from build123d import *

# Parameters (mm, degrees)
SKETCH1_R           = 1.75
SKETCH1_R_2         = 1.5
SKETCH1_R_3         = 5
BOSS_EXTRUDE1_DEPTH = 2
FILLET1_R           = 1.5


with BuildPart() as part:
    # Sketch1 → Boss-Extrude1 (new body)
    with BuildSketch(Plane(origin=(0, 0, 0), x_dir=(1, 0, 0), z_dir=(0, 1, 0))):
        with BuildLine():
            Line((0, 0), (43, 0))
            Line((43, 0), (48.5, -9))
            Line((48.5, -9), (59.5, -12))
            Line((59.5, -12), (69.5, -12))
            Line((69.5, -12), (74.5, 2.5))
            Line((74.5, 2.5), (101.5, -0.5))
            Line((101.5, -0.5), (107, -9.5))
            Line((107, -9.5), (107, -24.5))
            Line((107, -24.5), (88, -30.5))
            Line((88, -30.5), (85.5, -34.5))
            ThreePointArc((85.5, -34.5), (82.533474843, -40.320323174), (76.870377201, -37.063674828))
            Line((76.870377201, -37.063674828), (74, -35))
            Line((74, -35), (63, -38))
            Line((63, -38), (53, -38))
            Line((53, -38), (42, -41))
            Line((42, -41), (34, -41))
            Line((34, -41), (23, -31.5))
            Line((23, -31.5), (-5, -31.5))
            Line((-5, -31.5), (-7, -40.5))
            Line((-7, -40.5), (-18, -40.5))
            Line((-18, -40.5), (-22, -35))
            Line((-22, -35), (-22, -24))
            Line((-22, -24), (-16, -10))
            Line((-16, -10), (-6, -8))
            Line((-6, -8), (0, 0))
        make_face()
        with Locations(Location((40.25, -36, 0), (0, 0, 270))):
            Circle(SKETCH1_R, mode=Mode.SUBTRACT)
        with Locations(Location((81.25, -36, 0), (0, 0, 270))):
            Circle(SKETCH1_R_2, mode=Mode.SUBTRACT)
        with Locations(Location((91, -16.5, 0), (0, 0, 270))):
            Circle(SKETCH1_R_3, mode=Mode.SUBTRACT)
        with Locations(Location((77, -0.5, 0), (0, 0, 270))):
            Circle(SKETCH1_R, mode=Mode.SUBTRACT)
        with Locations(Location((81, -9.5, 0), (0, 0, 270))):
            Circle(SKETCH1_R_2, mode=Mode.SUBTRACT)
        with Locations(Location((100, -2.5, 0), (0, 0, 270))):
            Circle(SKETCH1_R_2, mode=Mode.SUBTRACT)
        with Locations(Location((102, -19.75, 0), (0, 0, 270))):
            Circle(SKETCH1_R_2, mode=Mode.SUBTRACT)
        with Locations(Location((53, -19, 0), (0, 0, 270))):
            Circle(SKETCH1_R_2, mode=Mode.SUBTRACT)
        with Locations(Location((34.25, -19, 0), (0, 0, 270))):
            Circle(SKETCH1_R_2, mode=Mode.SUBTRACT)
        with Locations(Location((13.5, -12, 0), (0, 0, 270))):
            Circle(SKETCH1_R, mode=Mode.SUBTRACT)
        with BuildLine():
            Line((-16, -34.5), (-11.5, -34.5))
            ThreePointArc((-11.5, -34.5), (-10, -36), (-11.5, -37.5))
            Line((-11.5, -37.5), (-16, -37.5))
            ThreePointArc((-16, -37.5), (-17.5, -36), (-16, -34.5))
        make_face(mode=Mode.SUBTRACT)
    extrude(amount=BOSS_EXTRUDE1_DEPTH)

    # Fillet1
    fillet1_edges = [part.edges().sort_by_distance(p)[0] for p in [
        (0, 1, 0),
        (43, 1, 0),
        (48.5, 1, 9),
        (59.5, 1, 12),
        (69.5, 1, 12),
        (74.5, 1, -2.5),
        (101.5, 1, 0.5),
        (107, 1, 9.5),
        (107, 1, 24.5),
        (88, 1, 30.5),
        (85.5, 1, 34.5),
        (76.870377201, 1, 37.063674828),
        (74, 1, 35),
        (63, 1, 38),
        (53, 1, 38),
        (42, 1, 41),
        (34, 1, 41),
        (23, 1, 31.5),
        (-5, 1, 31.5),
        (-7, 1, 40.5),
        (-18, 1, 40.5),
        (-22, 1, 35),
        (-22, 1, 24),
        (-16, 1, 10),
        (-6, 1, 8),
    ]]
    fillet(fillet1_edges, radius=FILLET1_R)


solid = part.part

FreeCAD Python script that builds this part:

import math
import FreeCAD as App
import Part
import Sketcher
from FreeCAD import Vector
Q = App.Units.Quantity


def edges_at(feature, points):
    """Names of the edges that pass closest to the given points."""
    edges = feature.Shape.Edges
    near = lambda p: min(range(len(edges)), key=lambda i: edges[i].distToShape(Part.Vertex(*p))[0])
    return sorted({f"Edge{near(p) + 1}" for p in points})

doc = App.newDocument("Part")
body = doc.addObject("PartDesign::Body", "Body")

# Sketch on XZ plane
sketch1 = body.newObject("Sketcher::SketchObject", "Sketch")
sketch1.AttachmentSupport = (doc.getObject("XZ_Plane"), [""])
sketch1.MapMode = "FlatFace"
sketch1.addGeometry(Part.LineSegment(Vector(43, 0, 0), Vector(0, 0, 0)), False)
sketch1.addGeometry(Part.LineSegment(Vector(0, 0, 0), Vector(-6, 8, 0)), False)
sketch1.addGeometry(Part.LineSegment(Vector(-6, 8, 0), Vector(-16, 10, 0)), False)
sketch1.addGeometry(Part.LineSegment(Vector(-16, 10, 0), Vector(-22, 24, 0)), False)
sketch1.addGeometry(Part.LineSegment(Vector(-22, 24, 0), Vector(-22, 35, 0)), False)
sketch1.addGeometry(Part.LineSegment(Vector(-22, 35, 0), Vector(-18, 40.5, 0)), False)
sketch1.addGeometry(Part.LineSegment(Vector(-18, 40.5, 0), Vector(-7, 40.5, 0)), False)
sketch1.addGeometry(Part.LineSegment(Vector(-7, 40.5, 0), Vector(-5, 31.5, 0)), False)
sketch1.addGeometry(Part.LineSegment(Vector(-5, 31.5, 0), Vector(23, 31.5, 0)), False)
sketch1.addGeometry(Part.LineSegment(Vector(23, 31.5, 0), Vector(34, 41, 0)), False)
sketch1.addGeometry(Part.LineSegment(Vector(34, 41, 0), Vector(42, 41, 0)), False)
sketch1.addGeometry(Part.LineSegment(Vector(42, 41, 0), Vector(53, 38, 0)), False)
sketch1.addGeometry(Part.LineSegment(Vector(53, 38, 0), Vector(63, 38, 0)), False)
sketch1.addGeometry(Part.LineSegment(Vector(63, 38, 0), Vector(74, 35, 0)), False)
sketch1.addGeometry(Part.LineSegment(Vector(74, 35, 0), Vector(76.9, 37.1, 0)), False)
sketch1.addGeometry(Part.ArcOfCircle(Part.Circle(Vector(81.2, 36, 0), Vector(0, 0, 1), 4.5), math.radians(-19), math.radians(166)), False)
sketch1.addGeometry(Part.LineSegment(Vector(85.5, 34.5, 0), Vector(88, 30.5, 0)), False)
sketch1.addGeometry(Part.LineSegment(Vector(88, 30.5, 0), Vector(107, 24.5, 0)), False)
sketch1.addGeometry(Part.LineSegment(Vector(107, 24.5, 0), Vector(107, 9.5, 0)), False)
sketch1.addGeometry(Part.LineSegment(Vector(107, 9.5, 0), Vector(101.5, 0.5, 0)), False)
sketch1.addGeometry(Part.LineSegment(Vector(101.5, 0.5, 0), Vector(74.5, -2.5, 0)), False)
sketch1.addGeometry(Part.LineSegment(Vector(74.5, -2.5, 0), Vector(69.5, 12, 0)), False)
sketch1.addGeometry(Part.LineSegment(Vector(69.5, 12, 0), Vector(59.5, 12, 0)), False)
sketch1.addGeometry(Part.LineSegment(Vector(59.5, 12, 0), Vector(48.5, 9, 0)), False)
sketch1.addGeometry(Part.LineSegment(Vector(48.5, 9, 0), Vector(43, 0, 0)), False)
sketch1.addGeometry(Part.Circle(Vector(81.2, 36, 0), Vector(0, 0, 1), 1.5), False)
sketch1.addGeometry(Part.Circle(Vector(102, 19.8, 0), Vector(0, 0, 1), 1.5), False)
sketch1.addGeometry(Part.Circle(Vector(53, 19, 0), Vector(0, 0, 1), 1.5), False)
sketch1.addGeometry(Part.Circle(Vector(40.2, 36, 0), Vector(0, 0, 1), 1.8), False)
sketch1.addGeometry(Part.LineSegment(Vector(-16, 34.5, 0), Vector(-11.5, 34.5, 0)), False)
sketch1.addGeometry(Part.ArcOfCircle(Part.Circle(Vector(-11.5, 36, 0), Vector(0, 0, 1), 1.5), math.radians(-90), math.radians(90)), False)
sketch1.addGeometry(Part.LineSegment(Vector(-11.5, 37.5, 0), Vector(-16, 37.5, 0)), False)
sketch1.addGeometry(Part.ArcOfCircle(Part.Circle(Vector(-16, 36, 0), Vector(0, 0, 1), 1.5), math.radians(90), math.radians(270)), False)
sketch1.addGeometry(Part.Circle(Vector(34.2, 19, 0), Vector(0, 0, 1), 1.5), False)
sketch1.addGeometry(Part.Circle(Vector(91, 16.5, 0), Vector(0, 0, 1), 5), False)
sketch1.addGeometry(Part.Circle(Vector(81, 9.5, 0), Vector(0, 0, 1), 1.5), False)
sketch1.addGeometry(Part.Circle(Vector(100, 2.5, 0), Vector(0, 0, 1), 1.5), False)
sketch1.addGeometry(Part.Circle(Vector(77, 0.5, 0), Vector(0, 0, 1), 1.8), False)
sketch1.addGeometry(Part.Circle(Vector(13.5, 12, 0), Vector(0, 0, 1), 1.8), False)
sketch1.addConstraint(Sketcher.Constraint("Coincident", 0, 2, 1, 1))
sketch1.addConstraint(Sketcher.Constraint("Coincident", 1, 2, 2, 1))
sketch1.addConstraint(Sketcher.Constraint("Coincident", 2, 2, 3, 1))
sketch1.addConstraint(Sketcher.Constraint("Coincident", 3, 2, 4, 1))
sketch1.addConstraint(Sketcher.Constraint("Coincident", 4, 2, 5, 1))
sketch1.addConstraint(Sketcher.Constraint("Coincident", 5, 2, 6, 1))
sketch1.addConstraint(Sketcher.Constraint("Coincident", 6, 2, 7, 1))
sketch1.addConstraint(Sketcher.Constraint("Coincident", 7, 2, 8, 1))
sketch1.addConstraint(Sketcher.Constraint("Coincident", 8, 2, 9, 1))
sketch1.addConstraint(Sketcher.Constraint("Coincident", 9, 2, 10, 1))
sketch1.addConstraint(Sketcher.Constraint("Coincident", 10, 2, 11, 1))
sketch1.addConstraint(Sketcher.Constraint("Coincident", 11, 2, 12, 1))
sketch1.addConstraint(Sketcher.Constraint("Coincident", 12, 2, 13, 1))
sketch1.addConstraint(Sketcher.Constraint("Coincident", 13, 2, 14, 1))
sketch1.addConstraint(Sketcher.Constraint("Coincident", 14, 2, 15, 2))
sketch1.addConstraint(Sketcher.Constraint("Coincident", 15, 1, 16, 1))
sketch1.addConstraint(Sketcher.Constraint("Coincident", 16, 2, 17, 1))
sketch1.addConstraint(Sketcher.Constraint("Coincident", 17, 2, 18, 1))
sketch1.addConstraint(Sketcher.Constraint("Coincident", 18, 2, 19, 1))
sketch1.addConstraint(Sketcher.Constraint("Coincident", 19, 2, 20, 1))
sketch1.addConstraint(Sketcher.Constraint("Coincident", 20, 2, 21, 1))
sketch1.addConstraint(Sketcher.Constraint("Coincident", 21, 2, 22, 1))
sketch1.addConstraint(Sketcher.Constraint("Coincident", 22, 2, 23, 1))
sketch1.addConstraint(Sketcher.Constraint("Coincident", 23, 2, 24, 1))
sketch1.addConstraint(Sketcher.Constraint("Coincident", 24, 2, 0, 1))
sketch1.addConstraint(Sketcher.Constraint("Tangent", 29, 2, 30, 1))
sketch1.addConstraint(Sketcher.Constraint("Tangent", 30, 2, 31, 1))
sketch1.addConstraint(Sketcher.Constraint("Tangent", 31, 2, 32, 1))
sketch1.addConstraint(Sketcher.Constraint("Tangent", 32, 2, 29, 1))
sketch1.addConstraint(Sketcher.Constraint("Horizontal", 0))
sketch1.addConstraint(Sketcher.Constraint("Vertical", 4))
sketch1.addConstraint(Sketcher.Constraint("Horizontal", 6))
sketch1.addConstraint(Sketcher.Constraint("Horizontal", 8))
sketch1.addConstraint(Sketcher.Constraint("Horizontal", 10))
sketch1.addConstraint(Sketcher.Constraint("Horizontal", 12))
sketch1.addConstraint(Sketcher.Constraint("Vertical", 18))
sketch1.addConstraint(Sketcher.Constraint("Horizontal", 22))
sketch1.addConstraint(Sketcher.Constraint("Horizontal", 29))
sketch1.addConstraint(Sketcher.Constraint("Horizontal", 31))
sketch1.addConstraint(Sketcher.Constraint("Coincident", 0, 2, -1, 1))
sketch1.addConstraint(Sketcher.Constraint("Coincident", 25, 3, 15, 3))
sketch1.addConstraint(Sketcher.Constraint("Equal", 25, 26))
sketch1.addConstraint(Sketcher.Constraint("Equal", 26, 27))
sketch1.addConstraint(Sketcher.Constraint("Equal", 27, 30))
sketch1.addConstraint(Sketcher.Constraint("Equal", 32, 33))
sketch1.addConstraint(Sketcher.Constraint("Equal", 33, 35))
sketch1.addConstraint(Sketcher.Constraint("Equal", 35, 36))
sketch1.addConstraint(Sketcher.Constraint("Equal", 28, 37))
sketch1.addConstraint(Sketcher.Constraint("Equal", 37, 38))
sketch1.addConstraint(Sketcher.Constraint("Parallel", 11, 13))
sketch1.addConstraint(Sketcher.Constraint("Parallel", 19, 24))
sketch1.addConstraint(Sketcher.Constraint("Horizontal", 25, 3, 28, 3))
sketch1.addConstraint(Sketcher.Constraint("Horizontal", 28, 3, 30, 3))
sketch1.addConstraint(Sketcher.Constraint("Horizontal", 27, 3, 33, 3))
sketch1.addConstraint(Sketcher.Constraint("Horizontal", 4, 2, 13, 2))
sketch1.addConstraint(Sketcher.Constraint("Horizontal", 35, 3, 18, 2))
sketch1.addConstraint(Sketcher.Constraint("Horizontal", 37, 3, 19, 2))
sketch1.addConstraint(Sketcher.Constraint("Horizontal", 38, 3, 21, 2))
sketch1.addConstraint(Sketcher.Constraint("Horizontal", 15, 1, 29, 2))
sketch1.addConstraint(Sketcher.Constraint("Vertical", 32, 3, 2, 2))
sketch1.addConstraint(Sketcher.Constraint("Vertical", 27, 3, 11, 2))
sketch1.addConstraint(Sketcher.Constraint("Equal", 12, 22))
sketch1.addConstraint(Sketcher.Constraint("Equal", 6, 4))
sketch1.addConstraint(Sketcher.Constraint("Equal", 11, 13))
sketch1.addConstraint(Sketcher.Constraint("Equal", 13, 23))
sketch1.addConstraint(Sketcher.Constraint("Equal", 19, 24))
sketch1.addConstraint(Sketcher.Constraint("Diameter", 25, Q("3 mm")))
sketch1.addConstraint(Sketcher.Constraint("Diameter", 34, Q("10 mm")))
sketch1.addConstraint(Sketcher.Constraint("Diameter", 28, Q("3.5 mm")))
sketch1.addConstraint(Sketcher.Constraint("DistanceX", 0, 2, 0, 1, Q("43 mm")))
sketch1.addConstraint(Sketcher.Constraint("DistanceX", 6, 1, 6, 2, Q("11 mm")))
sketch1.addConstraint(Sketcher.Constraint("DistanceX", 8, 1, 8, 2, Q("28 mm")))
sketch1.addConstraint(Sketcher.Constraint("DistanceX", 10, 1, 10, 2, Q("8 mm")))
sketch1.addConstraint(Sketcher.Constraint("DistanceX", 12, 1, 12, 2, Q("10 mm")))
sketch1.addConstraint(Sketcher.Constraint("DistanceY", 18, 2, 18, 1, Q("15 mm")))
sketch1.addConstraint(Sketcher.Constraint("Distance", 1, Q("10 mm")))
sketch1.addConstraint(Sketcher.Constraint("DistanceX", 29, 1, 29, 2, Q("4.5 mm")))
sketch1.addConstraint(Sketcher.Constraint("DistanceY", -1, 1, 15, 3, Q("36 mm")))
sketch1.addConstraint(Sketcher.Constraint("DistanceX", -1, 1, 26, 3, Q("102 mm")))
sketch1.addConstraint(Sketcher.Constraint("DistanceX", -1, 1, 27, 3, Q("53 mm")))
sketch1.addConstraint(Sketcher.Constraint("DistanceY", -1, 1, 27, 3, Q("19 mm")))
sketch1.addConstraint(Sketcher.Constraint("DistanceX", 32, 3, -1, 1, Q("16 mm")))
sketch1.addConstraint(Sketcher.Constraint("DistanceX", -1, 1, 34, 3, Q("91 mm")))
sketch1.addConstraint(Sketcher.Constraint("DistanceX", -1, 1, 35, 3, Q("81 mm")))
sketch1.addConstraint(Sketcher.Constraint("DistanceX", -1, 1, 36, 3, Q("100 mm")))
sketch1.addConstraint(Sketcher.Constraint("DistanceX", -1, 1, 37, 3, Q("77 mm")))
sketch1.addConstraint(Sketcher.Constraint("DistanceY", -1, 1, 38, 3, Q("12 mm")))
sketch1.addConstraint(Sketcher.Constraint("DistanceX", 1, 2, -1, 1, Q("6 mm")))
sketch1.addConstraint(Sketcher.Constraint("DistanceY", -1, 1, 2, 2, Q("10 mm")))
sketch1.addConstraint(Sketcher.Constraint("DistanceX", 3, 2, -1, 1, Q("22 mm")))
sketch1.addConstraint(Sketcher.Constraint("DistanceY", -1, 1, 3, 2, Q("24 mm")))
sketch1.addConstraint(Sketcher.Constraint("DistanceX", 5, 2, -1, 1, Q("18 mm")))
sketch1.addConstraint(Sketcher.Constraint("DistanceX", 7, 2, -1, 1, Q("5 mm")))
sketch1.addConstraint(Sketcher.Constraint("DistanceX", -1, 1, 9, 2, Q("34 mm")))
sketch1.addConstraint(Sketcher.Constraint("DistanceY", -1, 1, 9, 2, Q("41 mm")))
sketch1.addConstraint(Sketcher.Constraint("DistanceX", -1, 1, 16, 2, Q("88 mm")))
sketch1.addConstraint(Sketcher.Constraint("DistanceX", -1, 1, 17, 2, Q("107 mm")))
sketch1.addConstraint(Sketcher.Constraint("DistanceY", -1, 1, 23, 2, Q("9 mm")))
sketch1.addConstraint(Sketcher.Constraint("DistanceX", 28, 3, 15, 3, Q("41 mm")))
sketch1.addConstraint(Sketcher.Constraint("DistanceX", 33, 3, 28, 3, Q("6 mm")))
sketch1.addConstraint(Sketcher.Constraint("DistanceY", 35, 3, 34, 3, Q("7 mm")))
sketch1.addConstraint(Sketcher.Constraint("DistanceY", 36, 3, 34, 3, Q("14 mm")))
sketch1.addConstraint(Sketcher.Constraint("DistanceX", 30, 3, 38, 3, Q("25 mm")))
sketch1.addConstraint(Sketcher.Constraint("DistanceY", 7, 2, 6, 2, Q("9 mm")))
sketch1.addConstraint(Sketcher.Constraint("DistanceY", 34, 3, 15, 1, Q("18 mm")))
sketch1.addConstraint(Sketcher.Constraint("DistanceY", 16, 2, 15, 1, Q("4 mm")))
sketch1.addConstraint(Sketcher.Constraint("DistanceY", 20, 2, 37, 3, Q("3 mm")))
sketch1.addConstraint(Sketcher.Constraint("DistanceX", 20, 2, 19, 2, Q("27 mm")))
sketch1.addConstraint(Sketcher.Constraint("DistanceX", 21, 2, 20, 2, Q("5 mm")))
sketch1.addConstraint(Sketcher.Constraint("DistanceY", 7, 2, 29, 2, Q("3 mm")))
sketch1.addConstraint(Sketcher.Constraint("DistanceX", -1, 1, 15, 1, Q("85.5 mm")))
sketch1.addConstraint(Sketcher.Constraint("DistanceX", -1, 1, 15, 3, Q("81.25 mm")))
sketch1.addConstraint(Sketcher.Constraint("DistanceY", -1, 1, 26, 3, Q("19.75 mm")))
sketch1.addConstraint(Sketcher.Constraint("Distance", 14, Q("3.535225 mm")))
pad1 = body.newObject("PartDesign::Pad", "Pad")
pad1.Profile = sketch1
pad1.Length = 2
pad1.Reversed = True
doc.recompute()

fillet = body.newObject("PartDesign::Fillet", "Fillet")
fillet.Base = (pad1, edges_at(pad1, [
    (0, 1, 0),
    (43, 1, 0),
    (48.5, 1, 9),
    (59.5, 1, 12),
    (69.5, 1, 12),
    (74.5, 1, -2.5),
    (101.5, 1, 0.5),
    (107, 1, 9.5),
    (107, 1, 24.5),
    (88, 1, 30.5),
    (85.5, 1, 34.5),
    (76.87, 1, 37.064),
    (74, 1, 35),
    (63, 1, 38),
    (53, 1, 38),
    (42, 1, 41),
    (34, 1, 41),
    (23, 1, 31.5),
    (-5, 1, 31.5),
    (-7, 1, 40.5),
    (-18, 1, 40.5),
    (-22, 1, 35),
    (-22, 1, 24),
    (-16, 1, 10),
    (-6, 1, 8),
]))
fillet.Radius = 1.5

doc.recompute()
